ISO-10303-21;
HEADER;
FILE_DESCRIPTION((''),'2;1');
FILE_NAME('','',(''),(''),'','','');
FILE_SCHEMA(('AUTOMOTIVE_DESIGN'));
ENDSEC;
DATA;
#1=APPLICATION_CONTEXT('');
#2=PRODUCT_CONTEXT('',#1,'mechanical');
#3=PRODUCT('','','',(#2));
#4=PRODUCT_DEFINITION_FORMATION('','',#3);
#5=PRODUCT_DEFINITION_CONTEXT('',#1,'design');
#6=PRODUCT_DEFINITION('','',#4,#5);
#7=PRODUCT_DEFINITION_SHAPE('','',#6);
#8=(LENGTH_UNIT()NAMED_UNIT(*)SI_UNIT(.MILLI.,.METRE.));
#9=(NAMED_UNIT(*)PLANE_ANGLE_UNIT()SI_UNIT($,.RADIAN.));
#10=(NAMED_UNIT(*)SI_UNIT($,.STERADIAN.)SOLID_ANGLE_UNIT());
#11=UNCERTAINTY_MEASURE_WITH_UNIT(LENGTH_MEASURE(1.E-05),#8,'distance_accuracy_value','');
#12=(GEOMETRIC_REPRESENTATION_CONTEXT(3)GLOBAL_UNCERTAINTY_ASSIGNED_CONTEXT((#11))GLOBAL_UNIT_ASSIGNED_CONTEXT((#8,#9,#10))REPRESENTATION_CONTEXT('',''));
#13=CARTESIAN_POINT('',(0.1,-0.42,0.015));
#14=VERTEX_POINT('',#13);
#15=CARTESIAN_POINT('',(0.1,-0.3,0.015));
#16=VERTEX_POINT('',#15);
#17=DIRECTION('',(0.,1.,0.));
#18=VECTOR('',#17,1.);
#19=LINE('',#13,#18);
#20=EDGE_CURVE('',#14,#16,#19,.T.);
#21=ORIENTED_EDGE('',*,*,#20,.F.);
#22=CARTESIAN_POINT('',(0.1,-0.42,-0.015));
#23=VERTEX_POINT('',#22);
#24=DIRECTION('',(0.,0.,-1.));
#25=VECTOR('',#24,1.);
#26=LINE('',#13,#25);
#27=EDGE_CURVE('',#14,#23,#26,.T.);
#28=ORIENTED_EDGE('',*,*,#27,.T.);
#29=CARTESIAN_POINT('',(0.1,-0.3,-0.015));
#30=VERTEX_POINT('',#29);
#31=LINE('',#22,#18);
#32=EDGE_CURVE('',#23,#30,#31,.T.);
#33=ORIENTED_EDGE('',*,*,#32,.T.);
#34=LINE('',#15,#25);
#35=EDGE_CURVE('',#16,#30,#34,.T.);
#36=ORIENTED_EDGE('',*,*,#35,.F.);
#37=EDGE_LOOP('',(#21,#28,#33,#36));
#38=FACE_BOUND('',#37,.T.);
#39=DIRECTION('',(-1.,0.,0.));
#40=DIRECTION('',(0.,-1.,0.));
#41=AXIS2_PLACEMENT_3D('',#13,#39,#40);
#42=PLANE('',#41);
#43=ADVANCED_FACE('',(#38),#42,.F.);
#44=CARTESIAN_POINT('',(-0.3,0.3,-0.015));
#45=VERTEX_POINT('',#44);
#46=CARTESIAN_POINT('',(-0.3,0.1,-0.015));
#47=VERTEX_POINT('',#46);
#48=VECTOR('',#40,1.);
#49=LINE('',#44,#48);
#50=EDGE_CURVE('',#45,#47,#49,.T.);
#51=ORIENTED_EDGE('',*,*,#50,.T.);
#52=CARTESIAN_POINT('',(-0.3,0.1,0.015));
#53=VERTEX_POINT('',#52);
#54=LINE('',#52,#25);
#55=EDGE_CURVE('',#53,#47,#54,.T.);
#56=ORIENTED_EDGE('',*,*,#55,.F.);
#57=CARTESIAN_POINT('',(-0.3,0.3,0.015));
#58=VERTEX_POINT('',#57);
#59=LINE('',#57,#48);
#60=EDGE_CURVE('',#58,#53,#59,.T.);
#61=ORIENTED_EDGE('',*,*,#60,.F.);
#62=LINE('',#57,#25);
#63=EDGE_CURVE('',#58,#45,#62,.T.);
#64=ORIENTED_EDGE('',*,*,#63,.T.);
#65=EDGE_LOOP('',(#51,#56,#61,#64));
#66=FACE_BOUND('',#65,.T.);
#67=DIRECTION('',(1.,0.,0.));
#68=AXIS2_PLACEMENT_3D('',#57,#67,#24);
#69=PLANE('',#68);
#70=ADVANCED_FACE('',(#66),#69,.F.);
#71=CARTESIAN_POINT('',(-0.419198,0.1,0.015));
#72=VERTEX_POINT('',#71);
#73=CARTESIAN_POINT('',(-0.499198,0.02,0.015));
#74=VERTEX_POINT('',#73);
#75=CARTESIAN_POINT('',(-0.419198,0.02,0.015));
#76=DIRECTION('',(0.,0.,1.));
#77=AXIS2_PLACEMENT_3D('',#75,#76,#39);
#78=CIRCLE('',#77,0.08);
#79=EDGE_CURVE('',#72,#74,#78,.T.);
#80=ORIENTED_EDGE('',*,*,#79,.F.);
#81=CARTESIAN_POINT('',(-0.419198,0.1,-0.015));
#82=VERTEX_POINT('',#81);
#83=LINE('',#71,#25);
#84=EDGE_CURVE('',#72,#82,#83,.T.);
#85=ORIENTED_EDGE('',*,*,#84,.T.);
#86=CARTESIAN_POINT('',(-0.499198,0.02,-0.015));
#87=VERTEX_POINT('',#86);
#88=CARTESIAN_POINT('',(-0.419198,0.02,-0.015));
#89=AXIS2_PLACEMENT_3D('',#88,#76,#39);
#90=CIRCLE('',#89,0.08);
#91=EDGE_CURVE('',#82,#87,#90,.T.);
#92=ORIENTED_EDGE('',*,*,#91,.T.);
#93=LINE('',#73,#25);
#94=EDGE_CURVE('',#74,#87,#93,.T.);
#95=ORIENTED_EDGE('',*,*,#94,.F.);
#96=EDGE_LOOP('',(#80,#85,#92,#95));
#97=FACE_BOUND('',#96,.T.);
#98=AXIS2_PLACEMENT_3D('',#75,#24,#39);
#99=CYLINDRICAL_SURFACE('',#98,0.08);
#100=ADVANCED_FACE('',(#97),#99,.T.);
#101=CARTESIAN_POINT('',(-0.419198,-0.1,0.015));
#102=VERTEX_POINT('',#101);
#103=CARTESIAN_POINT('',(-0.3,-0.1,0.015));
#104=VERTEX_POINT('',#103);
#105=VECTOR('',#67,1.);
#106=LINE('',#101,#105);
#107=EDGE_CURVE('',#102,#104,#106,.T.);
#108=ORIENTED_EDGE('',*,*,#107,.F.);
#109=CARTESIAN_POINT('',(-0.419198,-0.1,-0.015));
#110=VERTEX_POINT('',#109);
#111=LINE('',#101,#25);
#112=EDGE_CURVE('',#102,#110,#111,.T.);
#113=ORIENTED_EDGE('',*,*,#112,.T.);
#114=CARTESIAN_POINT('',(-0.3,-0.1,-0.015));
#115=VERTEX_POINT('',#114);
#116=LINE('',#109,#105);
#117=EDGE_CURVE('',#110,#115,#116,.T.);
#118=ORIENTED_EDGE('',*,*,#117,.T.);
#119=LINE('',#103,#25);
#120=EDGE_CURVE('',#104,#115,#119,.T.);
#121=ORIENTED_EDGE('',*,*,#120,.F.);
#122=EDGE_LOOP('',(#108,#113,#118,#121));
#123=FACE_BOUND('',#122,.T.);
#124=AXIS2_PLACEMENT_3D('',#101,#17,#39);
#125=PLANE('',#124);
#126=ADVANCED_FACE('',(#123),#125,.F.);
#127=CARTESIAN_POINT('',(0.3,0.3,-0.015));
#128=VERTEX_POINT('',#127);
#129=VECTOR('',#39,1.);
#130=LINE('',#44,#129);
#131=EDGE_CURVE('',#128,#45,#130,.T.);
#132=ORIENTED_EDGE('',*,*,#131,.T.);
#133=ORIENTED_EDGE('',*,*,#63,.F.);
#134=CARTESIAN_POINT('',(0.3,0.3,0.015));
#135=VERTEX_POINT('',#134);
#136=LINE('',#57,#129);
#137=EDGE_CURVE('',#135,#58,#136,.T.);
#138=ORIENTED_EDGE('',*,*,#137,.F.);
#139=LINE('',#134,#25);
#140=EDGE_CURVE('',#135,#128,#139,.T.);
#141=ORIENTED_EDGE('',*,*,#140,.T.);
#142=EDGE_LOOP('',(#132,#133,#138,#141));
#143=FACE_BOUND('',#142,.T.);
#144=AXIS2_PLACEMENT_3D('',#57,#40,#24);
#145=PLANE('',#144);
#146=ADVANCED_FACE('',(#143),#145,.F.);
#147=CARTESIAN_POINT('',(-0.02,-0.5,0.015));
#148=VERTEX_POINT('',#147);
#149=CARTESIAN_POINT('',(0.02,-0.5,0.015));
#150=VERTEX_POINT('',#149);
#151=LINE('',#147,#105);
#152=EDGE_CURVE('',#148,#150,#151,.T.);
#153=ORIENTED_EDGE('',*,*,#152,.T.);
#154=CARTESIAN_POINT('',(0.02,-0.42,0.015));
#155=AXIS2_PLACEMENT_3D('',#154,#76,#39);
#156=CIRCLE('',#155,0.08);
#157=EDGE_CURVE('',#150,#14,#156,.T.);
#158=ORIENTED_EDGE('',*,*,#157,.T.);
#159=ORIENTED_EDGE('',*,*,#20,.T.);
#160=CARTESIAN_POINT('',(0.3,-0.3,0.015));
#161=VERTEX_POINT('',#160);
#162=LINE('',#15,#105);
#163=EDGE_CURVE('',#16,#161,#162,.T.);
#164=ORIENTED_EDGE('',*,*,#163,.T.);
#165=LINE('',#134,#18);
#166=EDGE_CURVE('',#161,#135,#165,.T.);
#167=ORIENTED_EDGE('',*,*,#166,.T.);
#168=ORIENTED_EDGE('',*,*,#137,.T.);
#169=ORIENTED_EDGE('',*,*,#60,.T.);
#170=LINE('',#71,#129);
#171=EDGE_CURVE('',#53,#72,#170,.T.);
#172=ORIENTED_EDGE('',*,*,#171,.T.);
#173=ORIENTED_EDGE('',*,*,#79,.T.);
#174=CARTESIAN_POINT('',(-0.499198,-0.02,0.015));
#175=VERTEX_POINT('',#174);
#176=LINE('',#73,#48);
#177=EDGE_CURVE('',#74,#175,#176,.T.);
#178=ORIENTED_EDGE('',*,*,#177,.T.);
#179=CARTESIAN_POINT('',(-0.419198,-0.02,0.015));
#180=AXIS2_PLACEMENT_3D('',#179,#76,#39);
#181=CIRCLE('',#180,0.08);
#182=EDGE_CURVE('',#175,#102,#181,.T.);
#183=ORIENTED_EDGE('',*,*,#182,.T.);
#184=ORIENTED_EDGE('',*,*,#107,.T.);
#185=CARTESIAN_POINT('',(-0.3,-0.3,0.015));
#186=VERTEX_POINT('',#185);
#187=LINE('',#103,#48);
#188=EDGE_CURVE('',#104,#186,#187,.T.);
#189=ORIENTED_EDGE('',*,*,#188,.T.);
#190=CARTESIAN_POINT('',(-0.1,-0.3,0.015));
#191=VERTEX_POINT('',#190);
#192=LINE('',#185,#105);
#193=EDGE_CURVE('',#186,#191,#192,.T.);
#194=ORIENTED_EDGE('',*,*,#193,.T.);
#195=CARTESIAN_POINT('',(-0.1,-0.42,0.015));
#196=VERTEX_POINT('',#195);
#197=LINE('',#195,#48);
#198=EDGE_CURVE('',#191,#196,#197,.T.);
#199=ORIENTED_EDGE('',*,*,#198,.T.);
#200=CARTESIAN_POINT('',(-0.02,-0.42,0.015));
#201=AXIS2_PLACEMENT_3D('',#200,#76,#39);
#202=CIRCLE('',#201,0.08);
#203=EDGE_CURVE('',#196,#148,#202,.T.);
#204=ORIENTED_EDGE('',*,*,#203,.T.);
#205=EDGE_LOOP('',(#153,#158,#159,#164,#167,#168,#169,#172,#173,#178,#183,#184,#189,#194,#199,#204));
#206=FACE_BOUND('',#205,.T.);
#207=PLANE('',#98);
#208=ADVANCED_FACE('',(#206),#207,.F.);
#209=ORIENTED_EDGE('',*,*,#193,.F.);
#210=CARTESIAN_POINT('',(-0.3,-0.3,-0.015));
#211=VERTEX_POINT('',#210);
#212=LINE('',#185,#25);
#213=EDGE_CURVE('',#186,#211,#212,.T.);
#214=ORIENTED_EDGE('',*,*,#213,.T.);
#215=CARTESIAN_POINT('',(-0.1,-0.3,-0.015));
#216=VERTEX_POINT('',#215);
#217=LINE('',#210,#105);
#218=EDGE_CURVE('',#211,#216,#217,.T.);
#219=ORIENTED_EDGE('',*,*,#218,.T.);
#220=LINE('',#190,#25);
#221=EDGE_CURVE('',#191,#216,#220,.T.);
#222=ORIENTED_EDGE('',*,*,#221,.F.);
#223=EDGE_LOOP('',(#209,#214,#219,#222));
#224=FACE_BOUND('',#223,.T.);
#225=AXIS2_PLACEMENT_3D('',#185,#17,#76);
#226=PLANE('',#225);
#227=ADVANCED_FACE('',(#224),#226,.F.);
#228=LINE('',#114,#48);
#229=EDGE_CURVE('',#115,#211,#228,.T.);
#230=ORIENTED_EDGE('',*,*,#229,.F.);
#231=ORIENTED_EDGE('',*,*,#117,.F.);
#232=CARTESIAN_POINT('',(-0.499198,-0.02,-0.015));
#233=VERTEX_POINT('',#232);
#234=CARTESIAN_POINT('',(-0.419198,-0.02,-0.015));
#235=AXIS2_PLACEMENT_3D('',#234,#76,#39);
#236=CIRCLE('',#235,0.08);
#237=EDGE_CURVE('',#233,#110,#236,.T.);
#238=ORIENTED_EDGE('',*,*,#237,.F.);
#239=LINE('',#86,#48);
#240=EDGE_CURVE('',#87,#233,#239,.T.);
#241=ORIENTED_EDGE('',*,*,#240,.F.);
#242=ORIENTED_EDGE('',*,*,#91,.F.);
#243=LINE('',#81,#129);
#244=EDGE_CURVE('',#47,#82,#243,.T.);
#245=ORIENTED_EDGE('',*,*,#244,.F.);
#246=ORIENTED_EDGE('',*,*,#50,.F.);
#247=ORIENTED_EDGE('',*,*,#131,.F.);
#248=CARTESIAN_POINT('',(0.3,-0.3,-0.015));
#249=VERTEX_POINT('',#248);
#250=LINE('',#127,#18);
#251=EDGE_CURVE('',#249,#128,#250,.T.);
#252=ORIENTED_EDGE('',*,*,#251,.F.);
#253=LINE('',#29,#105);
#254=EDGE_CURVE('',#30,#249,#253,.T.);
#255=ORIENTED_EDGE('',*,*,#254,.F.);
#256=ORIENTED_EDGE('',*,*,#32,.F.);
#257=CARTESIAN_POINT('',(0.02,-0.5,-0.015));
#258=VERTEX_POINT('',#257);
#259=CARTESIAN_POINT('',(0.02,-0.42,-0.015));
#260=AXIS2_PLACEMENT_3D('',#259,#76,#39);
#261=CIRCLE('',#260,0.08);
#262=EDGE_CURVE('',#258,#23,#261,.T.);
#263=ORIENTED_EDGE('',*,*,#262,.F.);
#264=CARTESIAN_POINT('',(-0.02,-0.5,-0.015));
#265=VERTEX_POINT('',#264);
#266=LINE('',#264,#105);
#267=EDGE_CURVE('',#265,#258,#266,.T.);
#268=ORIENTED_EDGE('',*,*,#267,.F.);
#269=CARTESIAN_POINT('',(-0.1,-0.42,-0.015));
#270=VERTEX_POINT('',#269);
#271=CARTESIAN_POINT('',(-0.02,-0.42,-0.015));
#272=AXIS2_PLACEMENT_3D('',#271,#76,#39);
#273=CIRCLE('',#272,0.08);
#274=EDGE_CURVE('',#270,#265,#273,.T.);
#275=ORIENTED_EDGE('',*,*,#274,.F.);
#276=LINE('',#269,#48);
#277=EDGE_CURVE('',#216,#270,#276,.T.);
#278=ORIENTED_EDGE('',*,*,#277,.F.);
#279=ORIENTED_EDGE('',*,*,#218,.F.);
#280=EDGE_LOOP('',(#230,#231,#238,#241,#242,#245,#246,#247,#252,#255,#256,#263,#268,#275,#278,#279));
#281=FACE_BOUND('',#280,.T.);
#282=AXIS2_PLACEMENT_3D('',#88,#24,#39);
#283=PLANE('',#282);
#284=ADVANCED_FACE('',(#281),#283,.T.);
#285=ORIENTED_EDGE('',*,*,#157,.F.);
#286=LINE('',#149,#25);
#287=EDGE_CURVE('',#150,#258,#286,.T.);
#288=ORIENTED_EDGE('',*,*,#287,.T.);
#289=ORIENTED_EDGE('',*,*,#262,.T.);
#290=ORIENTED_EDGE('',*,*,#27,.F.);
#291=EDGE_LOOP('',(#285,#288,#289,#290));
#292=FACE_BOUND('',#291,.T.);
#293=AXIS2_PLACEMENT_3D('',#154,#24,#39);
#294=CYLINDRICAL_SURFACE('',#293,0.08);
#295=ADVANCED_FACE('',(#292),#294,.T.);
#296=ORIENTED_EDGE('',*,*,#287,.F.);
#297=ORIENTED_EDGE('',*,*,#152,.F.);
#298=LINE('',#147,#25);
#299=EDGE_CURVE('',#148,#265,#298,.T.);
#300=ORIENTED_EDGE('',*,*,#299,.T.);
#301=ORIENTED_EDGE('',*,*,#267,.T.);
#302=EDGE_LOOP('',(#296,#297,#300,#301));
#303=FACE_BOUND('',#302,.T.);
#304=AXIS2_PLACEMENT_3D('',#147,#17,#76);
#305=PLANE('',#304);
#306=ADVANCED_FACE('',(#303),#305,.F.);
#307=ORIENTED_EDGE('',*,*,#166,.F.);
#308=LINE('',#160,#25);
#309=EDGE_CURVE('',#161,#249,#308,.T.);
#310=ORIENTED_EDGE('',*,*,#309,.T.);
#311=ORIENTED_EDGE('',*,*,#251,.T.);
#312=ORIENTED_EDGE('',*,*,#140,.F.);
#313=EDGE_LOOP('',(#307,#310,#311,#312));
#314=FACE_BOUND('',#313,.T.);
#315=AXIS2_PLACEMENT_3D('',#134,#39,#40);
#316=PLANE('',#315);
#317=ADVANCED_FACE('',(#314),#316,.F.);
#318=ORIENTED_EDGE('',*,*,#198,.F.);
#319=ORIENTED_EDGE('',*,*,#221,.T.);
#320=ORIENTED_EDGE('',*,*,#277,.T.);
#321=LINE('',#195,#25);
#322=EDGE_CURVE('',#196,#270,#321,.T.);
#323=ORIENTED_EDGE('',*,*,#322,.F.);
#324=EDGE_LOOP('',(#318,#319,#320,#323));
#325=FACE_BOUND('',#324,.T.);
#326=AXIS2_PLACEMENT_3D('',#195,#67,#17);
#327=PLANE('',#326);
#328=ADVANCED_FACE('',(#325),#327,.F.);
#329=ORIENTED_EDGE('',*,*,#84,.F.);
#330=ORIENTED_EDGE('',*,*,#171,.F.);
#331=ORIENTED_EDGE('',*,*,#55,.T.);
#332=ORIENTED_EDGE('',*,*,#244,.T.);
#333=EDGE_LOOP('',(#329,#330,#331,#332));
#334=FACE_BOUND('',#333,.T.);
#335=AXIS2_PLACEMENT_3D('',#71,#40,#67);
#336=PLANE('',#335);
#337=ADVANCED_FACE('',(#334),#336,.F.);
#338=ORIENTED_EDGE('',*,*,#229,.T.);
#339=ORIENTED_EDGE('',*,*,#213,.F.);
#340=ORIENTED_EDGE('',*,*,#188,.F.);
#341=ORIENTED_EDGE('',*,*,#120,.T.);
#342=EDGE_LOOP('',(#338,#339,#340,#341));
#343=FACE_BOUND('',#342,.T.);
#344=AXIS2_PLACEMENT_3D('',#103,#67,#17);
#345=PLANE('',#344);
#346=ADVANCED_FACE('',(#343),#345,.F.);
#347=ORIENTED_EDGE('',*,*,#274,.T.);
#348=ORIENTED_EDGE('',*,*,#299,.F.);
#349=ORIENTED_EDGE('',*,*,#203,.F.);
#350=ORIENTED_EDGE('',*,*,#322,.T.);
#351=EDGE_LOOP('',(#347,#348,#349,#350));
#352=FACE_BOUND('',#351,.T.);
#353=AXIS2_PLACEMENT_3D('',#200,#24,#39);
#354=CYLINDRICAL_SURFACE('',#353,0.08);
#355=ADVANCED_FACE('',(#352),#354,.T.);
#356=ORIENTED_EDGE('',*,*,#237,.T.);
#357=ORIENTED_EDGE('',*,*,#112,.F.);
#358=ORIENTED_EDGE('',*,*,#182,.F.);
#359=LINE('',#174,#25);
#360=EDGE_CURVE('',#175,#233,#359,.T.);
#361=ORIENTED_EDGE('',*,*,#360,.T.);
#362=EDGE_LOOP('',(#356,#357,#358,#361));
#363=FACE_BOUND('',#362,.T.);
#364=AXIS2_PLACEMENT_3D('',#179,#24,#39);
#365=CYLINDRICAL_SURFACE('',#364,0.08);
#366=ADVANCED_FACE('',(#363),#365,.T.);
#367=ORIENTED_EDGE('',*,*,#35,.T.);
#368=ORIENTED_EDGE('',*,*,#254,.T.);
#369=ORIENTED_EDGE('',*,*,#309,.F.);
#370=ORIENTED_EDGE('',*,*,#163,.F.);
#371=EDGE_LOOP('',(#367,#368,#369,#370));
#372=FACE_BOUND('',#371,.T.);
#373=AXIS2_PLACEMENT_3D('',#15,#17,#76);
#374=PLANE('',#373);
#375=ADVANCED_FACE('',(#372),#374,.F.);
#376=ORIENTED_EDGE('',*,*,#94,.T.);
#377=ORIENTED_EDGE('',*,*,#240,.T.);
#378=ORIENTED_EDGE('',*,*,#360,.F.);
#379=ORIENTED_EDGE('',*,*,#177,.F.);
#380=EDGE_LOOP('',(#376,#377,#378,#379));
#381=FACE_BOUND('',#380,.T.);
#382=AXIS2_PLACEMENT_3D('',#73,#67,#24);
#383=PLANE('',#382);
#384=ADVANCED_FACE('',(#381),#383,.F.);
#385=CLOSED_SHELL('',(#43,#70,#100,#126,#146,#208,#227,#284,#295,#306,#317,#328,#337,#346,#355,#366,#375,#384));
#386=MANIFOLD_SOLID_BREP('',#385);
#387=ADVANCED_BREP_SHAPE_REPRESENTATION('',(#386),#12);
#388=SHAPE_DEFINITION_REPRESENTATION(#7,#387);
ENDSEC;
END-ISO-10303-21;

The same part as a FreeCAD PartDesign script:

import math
import FreeCAD as App
import Part
import Sketcher

doc = App.newDocument("Part")
body = doc.addObject("PartDesign::Body", "Body")

sketch1 = body.newObject("Sketcher::SketchObject", "Sketch")
sketch1.AttachmentSupport = (doc.getObject("XY_Plane"), [""])
sketch1.MapMode = "FlatFace"
sketch1.addGeometry(Part.LineSegment(App.Vector(-0.3, 0.1, 0), App.Vector(-0.419198, 0.1, 0)), False)
sketch1.addGeometry(Part.ArcOfCircle(Part.Circle(App.Vector(-0.419198, 0.02, 0), App.Vector(0, 0, 1), 0.08), math.radians(90), math.radians(180)), False)
sketch1.addGeometry(Part.LineSegment(App.Vector(-0.499198, 0.02, 0), App.Vector(-0.499198, -0.02, 0)), False)
sketch1.addGeometry(Part.ArcOfCircle(Part.Circle(App.Vector(-0.419198, -0.02, 0), App.Vector(0, 0, 1), 0.08), math.radians(180), math.radians(270)), False)
sketch1.addGeometry(Part.LineSegment(App.Vector(-0.419198, -0.1, 0), App.Vector(-0.3, -0.1, 0)), False)
sketch1.addGeometry(Part.LineSegment(App.Vector(-0.3, -0.1, 0), App.Vector(-0.3, -0.3, 0)), False)
sketch1.addGeometry(Part.LineSegment(App.Vector(-0.3, -0.3, 0), App.Vector(-0.1, -0.3, 0)), False)
sketch1.addGeometry(Part.LineSegment(App.Vector(-0.1, -0.3, 0), App.Vector(-0.1, -0.42, 0)), False)
sketch1.addGeometry(Part.ArcOfCircle(Part.Circle(App.Vector(-0.02, -0.42, 0), App.Vector(0, 0, 1), 0.08), math.radians(-179.999999), math.radians(-90.000001)), False)
sketch1.addGeometry(Part.LineSegment(App.Vector(-0.02, -0.5, 0), App.Vector(0.02, -0.5, 0)), False)
sketch1.addGeometry(Part.ArcOfCircle(Part.Circle(App.Vector(0.02, -0.42, 0), App.Vector(0, 0, 1), 0.08), math.radians(-89.999999), math.radians(-0.000001)), False)
sketch1.addGeometry(Part.LineSegment(App.Vector(0.1, -0.42, 0), App.Vector(0.1, -0.3, 0)), False)
sketch1.addGeometry(Part.LineSegment(App.Vector(0.1, -0.3, 0), App.Vector(0.3, -0.3, 0)), False)
sketch1.addGeometry(Part.LineSegment(App.Vector(0.3, -0.3, 0), App.Vector(0.3, 0.3, 0)), False)
sketch1.addGeometry(Part.LineSegment(App.Vector(0.3, 0.3, 0), App.Vector(-0.3, 0.3, 0)), False)
sketch1.addGeometry(Part.LineSegment(App.Vector(-0.3, 0.3, 0), App.Vector(-0.3, 0.1, 0)), False)
sketch1.addConstraint(Sketcher.Constraint("Tangent", 0, 2, 1, 1))
sketch1.addConstraint(Sketcher.Constraint("Tangent", 1, 2, 2, 1))
sketch1.addConstraint(Sketcher.Constraint("Tangent", 2, 2, 3, 1))
sketch1.addConstraint(Sketcher.Constraint("Tangent", 3, 2, 4, 1))
sketch1.addConstraint(Sketcher.Constraint("Coincident", 4, 2, 5, 1))
sketch1.addConstraint(Sketcher.Constraint("Coincident", 5, 2, 6, 1))
sketch1.addConstraint(Sketcher.Constraint("Coincident", 6, 2, 7, 1))
sketch1.addConstraint(Sketcher.Constraint("Tangent", 7, 2, 8, 1))
sketch1.addConstraint(Sketcher.Constraint("Tangent", 8, 2, 9, 1))
sketch1.addConstraint(Sketcher.Constraint("Tangent", 9, 2, 10, 1))
sketch1.addConstraint(Sketcher.Constraint("Tangent", 10, 2, 11, 1))
sketch1.addConstraint(Sketcher.Constraint("Coincident", 11, 2, 12, 1))
sketch1.addConstraint(Sketcher.Constraint("Coincident", 12, 2, 13, 1))
sketch1.addConstraint(Sketcher.Constraint("Coincident", 13, 2, 14, 1))
sketch1.addConstraint(Sketcher.Constraint("Coincident", 14, 2, 15, 1))
sketch1.addConstraint(Sketcher.Constraint("Coincident", 15, 2, 0, 1))
sketch1.addConstraint(Sketcher.Constraint("Horizontal", 0))
sketch1.addConstraint(Sketcher.Constraint("Vertical", 2))
sketch1.addConstraint(Sketcher.Constraint("Horizontal", 4))
sketch1.addConstraint(Sketcher.Constraint("Vertical", 5))
sketch1.addConstraint(Sketcher.Constraint("Horizontal", 6))
sketch1.addConstraint(Sketcher.Constraint("Vertical", 7))
sketch1.addConstraint(Sketcher.Constraint("Horizontal", 9))
sketch1.addConstraint(Sketcher.Constraint("Vertical", 11))
sketch1.addConstraint(Sketcher.Constraint("Horizontal", 12))
sketch1.addConstraint(Sketcher.Constraint("Vertical", 13))
sketch1.addConstraint(Sketcher.Constraint("Horizontal", 14))
sketch1.addConstraint(Sketcher.Constraint("Vertical", 15))
sketch1.addConstraint(Sketcher.Constraint("Equal", 1, 3))
sketch1.addConstraint(Sketcher.Constraint("Equal", 3, 8))
sketch1.addConstraint(Sketcher.Constraint("Equal", 8, 10))
sketch1.addConstraint(Sketcher.Constraint("Symmetric", 5, 2, 13, 2, -1, 1))
sketch1.addConstraint(Sketcher.Constraint("Symmetric", 12, 2, 14, 2, -1, 1))
sketch1.addConstraint(Sketcher.Constraint("Equal", 6, 12))
sketch1.addConstraint(Sketcher.Constraint("Equal", 9, 2))
sketch1.addConstraint(Sketcher.Constraint("Equal", 12, 5))
sketch1.addConstraint(Sketcher.Constraint("Equal", 14, 13))
sketch1.addConstraint(Sketcher.Constraint("Radius", 1, 0.08))
sketch1.addConstraint(Sketcher.Constraint("DistanceX", 6, 1, 6, 2, 0.2))
sketch1.addConstraint(Sketcher.Constraint("DistanceX", 14, 2, 14, 1, 0.6))
sketch1.addConstraint(Sketcher.Constraint("DistanceY", 7, 2, 7, 1, 0.12))
sketch1.addConstraint(Sketcher.Constraint("DistanceX", 0, 2, 0, 1, 0.119198))
pad1 = body.newObject("PartDesign::Pad", "Pad")
pad1.Profile = sketch1
pad1.Length = 0.03
pad1.Midplane = True

doc.recompute()
